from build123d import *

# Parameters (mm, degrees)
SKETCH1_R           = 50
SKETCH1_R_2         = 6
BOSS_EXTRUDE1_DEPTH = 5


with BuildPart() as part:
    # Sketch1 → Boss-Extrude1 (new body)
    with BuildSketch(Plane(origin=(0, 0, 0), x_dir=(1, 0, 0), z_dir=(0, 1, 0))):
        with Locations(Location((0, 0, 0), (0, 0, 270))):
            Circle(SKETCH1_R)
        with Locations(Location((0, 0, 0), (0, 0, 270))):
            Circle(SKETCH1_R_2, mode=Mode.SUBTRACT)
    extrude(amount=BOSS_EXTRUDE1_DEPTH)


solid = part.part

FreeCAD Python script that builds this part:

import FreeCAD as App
import Part
import Sketcher
from FreeCAD import Vector
Q = App.Units.Quantity

doc = App.newDocument("Part")
params = doc.addObject("Spreadsheet::Sheet", "Params")
for row, (alias, value) in enumerate([
    ("sketch1_diameter", "100 mm"),
    ("sketch1_diameter2", "12 mm"),
    ("pad1_length", "5 mm"),
], start=1):
    params.set(f"A{row}", alias)
    params.set(f"B{row}", "=" + value)
    params.setAlias(f"B{row}", alias)

body = doc.addObject("PartDesign::Body", "Body")

sketch1 = body.newObject("Sketcher::SketchObject", "Sketch")
sketch1.AttachmentSupport = (doc.getObject("XZ_Plane"), [""])
sketch1.MapMode = "FlatFace"
sketch1.addGeometry(Part.Circle(Vector(0, 0, 0), Vector(0, 0, 1), 50), False)
sketch1.addGeometry(Part.Circle(Vector(0, 0, 0), Vector(0, 0, 1), 6), False)
sketch1.addConstraint(Sketcher.Constraint("Coincident", 0, 3, -1, 1))
sketch1.addConstraint(Sketcher.Constraint("Coincident", 1, 3, -1, 1))
sketch1.addConstraint(Sketcher.Constraint("Diameter", 0, Q("100 mm")))
sketch1.addConstraint(Sketcher.Constraint("Diameter", 1, Q("12 mm")))
sketch1.setExpression("Constraints[2]", "Params.sketch1_diameter")
sketch1.setExpression("Constraints[3]", "Params.sketch1_diameter2")
pad1 = body.newObject("PartDesign::Pad", "Pad")
pad1.Profile = sketch1
pad1.setExpression("Length", "Params.pad1_length")
pad1.Reversed = True

doc.recompute()
